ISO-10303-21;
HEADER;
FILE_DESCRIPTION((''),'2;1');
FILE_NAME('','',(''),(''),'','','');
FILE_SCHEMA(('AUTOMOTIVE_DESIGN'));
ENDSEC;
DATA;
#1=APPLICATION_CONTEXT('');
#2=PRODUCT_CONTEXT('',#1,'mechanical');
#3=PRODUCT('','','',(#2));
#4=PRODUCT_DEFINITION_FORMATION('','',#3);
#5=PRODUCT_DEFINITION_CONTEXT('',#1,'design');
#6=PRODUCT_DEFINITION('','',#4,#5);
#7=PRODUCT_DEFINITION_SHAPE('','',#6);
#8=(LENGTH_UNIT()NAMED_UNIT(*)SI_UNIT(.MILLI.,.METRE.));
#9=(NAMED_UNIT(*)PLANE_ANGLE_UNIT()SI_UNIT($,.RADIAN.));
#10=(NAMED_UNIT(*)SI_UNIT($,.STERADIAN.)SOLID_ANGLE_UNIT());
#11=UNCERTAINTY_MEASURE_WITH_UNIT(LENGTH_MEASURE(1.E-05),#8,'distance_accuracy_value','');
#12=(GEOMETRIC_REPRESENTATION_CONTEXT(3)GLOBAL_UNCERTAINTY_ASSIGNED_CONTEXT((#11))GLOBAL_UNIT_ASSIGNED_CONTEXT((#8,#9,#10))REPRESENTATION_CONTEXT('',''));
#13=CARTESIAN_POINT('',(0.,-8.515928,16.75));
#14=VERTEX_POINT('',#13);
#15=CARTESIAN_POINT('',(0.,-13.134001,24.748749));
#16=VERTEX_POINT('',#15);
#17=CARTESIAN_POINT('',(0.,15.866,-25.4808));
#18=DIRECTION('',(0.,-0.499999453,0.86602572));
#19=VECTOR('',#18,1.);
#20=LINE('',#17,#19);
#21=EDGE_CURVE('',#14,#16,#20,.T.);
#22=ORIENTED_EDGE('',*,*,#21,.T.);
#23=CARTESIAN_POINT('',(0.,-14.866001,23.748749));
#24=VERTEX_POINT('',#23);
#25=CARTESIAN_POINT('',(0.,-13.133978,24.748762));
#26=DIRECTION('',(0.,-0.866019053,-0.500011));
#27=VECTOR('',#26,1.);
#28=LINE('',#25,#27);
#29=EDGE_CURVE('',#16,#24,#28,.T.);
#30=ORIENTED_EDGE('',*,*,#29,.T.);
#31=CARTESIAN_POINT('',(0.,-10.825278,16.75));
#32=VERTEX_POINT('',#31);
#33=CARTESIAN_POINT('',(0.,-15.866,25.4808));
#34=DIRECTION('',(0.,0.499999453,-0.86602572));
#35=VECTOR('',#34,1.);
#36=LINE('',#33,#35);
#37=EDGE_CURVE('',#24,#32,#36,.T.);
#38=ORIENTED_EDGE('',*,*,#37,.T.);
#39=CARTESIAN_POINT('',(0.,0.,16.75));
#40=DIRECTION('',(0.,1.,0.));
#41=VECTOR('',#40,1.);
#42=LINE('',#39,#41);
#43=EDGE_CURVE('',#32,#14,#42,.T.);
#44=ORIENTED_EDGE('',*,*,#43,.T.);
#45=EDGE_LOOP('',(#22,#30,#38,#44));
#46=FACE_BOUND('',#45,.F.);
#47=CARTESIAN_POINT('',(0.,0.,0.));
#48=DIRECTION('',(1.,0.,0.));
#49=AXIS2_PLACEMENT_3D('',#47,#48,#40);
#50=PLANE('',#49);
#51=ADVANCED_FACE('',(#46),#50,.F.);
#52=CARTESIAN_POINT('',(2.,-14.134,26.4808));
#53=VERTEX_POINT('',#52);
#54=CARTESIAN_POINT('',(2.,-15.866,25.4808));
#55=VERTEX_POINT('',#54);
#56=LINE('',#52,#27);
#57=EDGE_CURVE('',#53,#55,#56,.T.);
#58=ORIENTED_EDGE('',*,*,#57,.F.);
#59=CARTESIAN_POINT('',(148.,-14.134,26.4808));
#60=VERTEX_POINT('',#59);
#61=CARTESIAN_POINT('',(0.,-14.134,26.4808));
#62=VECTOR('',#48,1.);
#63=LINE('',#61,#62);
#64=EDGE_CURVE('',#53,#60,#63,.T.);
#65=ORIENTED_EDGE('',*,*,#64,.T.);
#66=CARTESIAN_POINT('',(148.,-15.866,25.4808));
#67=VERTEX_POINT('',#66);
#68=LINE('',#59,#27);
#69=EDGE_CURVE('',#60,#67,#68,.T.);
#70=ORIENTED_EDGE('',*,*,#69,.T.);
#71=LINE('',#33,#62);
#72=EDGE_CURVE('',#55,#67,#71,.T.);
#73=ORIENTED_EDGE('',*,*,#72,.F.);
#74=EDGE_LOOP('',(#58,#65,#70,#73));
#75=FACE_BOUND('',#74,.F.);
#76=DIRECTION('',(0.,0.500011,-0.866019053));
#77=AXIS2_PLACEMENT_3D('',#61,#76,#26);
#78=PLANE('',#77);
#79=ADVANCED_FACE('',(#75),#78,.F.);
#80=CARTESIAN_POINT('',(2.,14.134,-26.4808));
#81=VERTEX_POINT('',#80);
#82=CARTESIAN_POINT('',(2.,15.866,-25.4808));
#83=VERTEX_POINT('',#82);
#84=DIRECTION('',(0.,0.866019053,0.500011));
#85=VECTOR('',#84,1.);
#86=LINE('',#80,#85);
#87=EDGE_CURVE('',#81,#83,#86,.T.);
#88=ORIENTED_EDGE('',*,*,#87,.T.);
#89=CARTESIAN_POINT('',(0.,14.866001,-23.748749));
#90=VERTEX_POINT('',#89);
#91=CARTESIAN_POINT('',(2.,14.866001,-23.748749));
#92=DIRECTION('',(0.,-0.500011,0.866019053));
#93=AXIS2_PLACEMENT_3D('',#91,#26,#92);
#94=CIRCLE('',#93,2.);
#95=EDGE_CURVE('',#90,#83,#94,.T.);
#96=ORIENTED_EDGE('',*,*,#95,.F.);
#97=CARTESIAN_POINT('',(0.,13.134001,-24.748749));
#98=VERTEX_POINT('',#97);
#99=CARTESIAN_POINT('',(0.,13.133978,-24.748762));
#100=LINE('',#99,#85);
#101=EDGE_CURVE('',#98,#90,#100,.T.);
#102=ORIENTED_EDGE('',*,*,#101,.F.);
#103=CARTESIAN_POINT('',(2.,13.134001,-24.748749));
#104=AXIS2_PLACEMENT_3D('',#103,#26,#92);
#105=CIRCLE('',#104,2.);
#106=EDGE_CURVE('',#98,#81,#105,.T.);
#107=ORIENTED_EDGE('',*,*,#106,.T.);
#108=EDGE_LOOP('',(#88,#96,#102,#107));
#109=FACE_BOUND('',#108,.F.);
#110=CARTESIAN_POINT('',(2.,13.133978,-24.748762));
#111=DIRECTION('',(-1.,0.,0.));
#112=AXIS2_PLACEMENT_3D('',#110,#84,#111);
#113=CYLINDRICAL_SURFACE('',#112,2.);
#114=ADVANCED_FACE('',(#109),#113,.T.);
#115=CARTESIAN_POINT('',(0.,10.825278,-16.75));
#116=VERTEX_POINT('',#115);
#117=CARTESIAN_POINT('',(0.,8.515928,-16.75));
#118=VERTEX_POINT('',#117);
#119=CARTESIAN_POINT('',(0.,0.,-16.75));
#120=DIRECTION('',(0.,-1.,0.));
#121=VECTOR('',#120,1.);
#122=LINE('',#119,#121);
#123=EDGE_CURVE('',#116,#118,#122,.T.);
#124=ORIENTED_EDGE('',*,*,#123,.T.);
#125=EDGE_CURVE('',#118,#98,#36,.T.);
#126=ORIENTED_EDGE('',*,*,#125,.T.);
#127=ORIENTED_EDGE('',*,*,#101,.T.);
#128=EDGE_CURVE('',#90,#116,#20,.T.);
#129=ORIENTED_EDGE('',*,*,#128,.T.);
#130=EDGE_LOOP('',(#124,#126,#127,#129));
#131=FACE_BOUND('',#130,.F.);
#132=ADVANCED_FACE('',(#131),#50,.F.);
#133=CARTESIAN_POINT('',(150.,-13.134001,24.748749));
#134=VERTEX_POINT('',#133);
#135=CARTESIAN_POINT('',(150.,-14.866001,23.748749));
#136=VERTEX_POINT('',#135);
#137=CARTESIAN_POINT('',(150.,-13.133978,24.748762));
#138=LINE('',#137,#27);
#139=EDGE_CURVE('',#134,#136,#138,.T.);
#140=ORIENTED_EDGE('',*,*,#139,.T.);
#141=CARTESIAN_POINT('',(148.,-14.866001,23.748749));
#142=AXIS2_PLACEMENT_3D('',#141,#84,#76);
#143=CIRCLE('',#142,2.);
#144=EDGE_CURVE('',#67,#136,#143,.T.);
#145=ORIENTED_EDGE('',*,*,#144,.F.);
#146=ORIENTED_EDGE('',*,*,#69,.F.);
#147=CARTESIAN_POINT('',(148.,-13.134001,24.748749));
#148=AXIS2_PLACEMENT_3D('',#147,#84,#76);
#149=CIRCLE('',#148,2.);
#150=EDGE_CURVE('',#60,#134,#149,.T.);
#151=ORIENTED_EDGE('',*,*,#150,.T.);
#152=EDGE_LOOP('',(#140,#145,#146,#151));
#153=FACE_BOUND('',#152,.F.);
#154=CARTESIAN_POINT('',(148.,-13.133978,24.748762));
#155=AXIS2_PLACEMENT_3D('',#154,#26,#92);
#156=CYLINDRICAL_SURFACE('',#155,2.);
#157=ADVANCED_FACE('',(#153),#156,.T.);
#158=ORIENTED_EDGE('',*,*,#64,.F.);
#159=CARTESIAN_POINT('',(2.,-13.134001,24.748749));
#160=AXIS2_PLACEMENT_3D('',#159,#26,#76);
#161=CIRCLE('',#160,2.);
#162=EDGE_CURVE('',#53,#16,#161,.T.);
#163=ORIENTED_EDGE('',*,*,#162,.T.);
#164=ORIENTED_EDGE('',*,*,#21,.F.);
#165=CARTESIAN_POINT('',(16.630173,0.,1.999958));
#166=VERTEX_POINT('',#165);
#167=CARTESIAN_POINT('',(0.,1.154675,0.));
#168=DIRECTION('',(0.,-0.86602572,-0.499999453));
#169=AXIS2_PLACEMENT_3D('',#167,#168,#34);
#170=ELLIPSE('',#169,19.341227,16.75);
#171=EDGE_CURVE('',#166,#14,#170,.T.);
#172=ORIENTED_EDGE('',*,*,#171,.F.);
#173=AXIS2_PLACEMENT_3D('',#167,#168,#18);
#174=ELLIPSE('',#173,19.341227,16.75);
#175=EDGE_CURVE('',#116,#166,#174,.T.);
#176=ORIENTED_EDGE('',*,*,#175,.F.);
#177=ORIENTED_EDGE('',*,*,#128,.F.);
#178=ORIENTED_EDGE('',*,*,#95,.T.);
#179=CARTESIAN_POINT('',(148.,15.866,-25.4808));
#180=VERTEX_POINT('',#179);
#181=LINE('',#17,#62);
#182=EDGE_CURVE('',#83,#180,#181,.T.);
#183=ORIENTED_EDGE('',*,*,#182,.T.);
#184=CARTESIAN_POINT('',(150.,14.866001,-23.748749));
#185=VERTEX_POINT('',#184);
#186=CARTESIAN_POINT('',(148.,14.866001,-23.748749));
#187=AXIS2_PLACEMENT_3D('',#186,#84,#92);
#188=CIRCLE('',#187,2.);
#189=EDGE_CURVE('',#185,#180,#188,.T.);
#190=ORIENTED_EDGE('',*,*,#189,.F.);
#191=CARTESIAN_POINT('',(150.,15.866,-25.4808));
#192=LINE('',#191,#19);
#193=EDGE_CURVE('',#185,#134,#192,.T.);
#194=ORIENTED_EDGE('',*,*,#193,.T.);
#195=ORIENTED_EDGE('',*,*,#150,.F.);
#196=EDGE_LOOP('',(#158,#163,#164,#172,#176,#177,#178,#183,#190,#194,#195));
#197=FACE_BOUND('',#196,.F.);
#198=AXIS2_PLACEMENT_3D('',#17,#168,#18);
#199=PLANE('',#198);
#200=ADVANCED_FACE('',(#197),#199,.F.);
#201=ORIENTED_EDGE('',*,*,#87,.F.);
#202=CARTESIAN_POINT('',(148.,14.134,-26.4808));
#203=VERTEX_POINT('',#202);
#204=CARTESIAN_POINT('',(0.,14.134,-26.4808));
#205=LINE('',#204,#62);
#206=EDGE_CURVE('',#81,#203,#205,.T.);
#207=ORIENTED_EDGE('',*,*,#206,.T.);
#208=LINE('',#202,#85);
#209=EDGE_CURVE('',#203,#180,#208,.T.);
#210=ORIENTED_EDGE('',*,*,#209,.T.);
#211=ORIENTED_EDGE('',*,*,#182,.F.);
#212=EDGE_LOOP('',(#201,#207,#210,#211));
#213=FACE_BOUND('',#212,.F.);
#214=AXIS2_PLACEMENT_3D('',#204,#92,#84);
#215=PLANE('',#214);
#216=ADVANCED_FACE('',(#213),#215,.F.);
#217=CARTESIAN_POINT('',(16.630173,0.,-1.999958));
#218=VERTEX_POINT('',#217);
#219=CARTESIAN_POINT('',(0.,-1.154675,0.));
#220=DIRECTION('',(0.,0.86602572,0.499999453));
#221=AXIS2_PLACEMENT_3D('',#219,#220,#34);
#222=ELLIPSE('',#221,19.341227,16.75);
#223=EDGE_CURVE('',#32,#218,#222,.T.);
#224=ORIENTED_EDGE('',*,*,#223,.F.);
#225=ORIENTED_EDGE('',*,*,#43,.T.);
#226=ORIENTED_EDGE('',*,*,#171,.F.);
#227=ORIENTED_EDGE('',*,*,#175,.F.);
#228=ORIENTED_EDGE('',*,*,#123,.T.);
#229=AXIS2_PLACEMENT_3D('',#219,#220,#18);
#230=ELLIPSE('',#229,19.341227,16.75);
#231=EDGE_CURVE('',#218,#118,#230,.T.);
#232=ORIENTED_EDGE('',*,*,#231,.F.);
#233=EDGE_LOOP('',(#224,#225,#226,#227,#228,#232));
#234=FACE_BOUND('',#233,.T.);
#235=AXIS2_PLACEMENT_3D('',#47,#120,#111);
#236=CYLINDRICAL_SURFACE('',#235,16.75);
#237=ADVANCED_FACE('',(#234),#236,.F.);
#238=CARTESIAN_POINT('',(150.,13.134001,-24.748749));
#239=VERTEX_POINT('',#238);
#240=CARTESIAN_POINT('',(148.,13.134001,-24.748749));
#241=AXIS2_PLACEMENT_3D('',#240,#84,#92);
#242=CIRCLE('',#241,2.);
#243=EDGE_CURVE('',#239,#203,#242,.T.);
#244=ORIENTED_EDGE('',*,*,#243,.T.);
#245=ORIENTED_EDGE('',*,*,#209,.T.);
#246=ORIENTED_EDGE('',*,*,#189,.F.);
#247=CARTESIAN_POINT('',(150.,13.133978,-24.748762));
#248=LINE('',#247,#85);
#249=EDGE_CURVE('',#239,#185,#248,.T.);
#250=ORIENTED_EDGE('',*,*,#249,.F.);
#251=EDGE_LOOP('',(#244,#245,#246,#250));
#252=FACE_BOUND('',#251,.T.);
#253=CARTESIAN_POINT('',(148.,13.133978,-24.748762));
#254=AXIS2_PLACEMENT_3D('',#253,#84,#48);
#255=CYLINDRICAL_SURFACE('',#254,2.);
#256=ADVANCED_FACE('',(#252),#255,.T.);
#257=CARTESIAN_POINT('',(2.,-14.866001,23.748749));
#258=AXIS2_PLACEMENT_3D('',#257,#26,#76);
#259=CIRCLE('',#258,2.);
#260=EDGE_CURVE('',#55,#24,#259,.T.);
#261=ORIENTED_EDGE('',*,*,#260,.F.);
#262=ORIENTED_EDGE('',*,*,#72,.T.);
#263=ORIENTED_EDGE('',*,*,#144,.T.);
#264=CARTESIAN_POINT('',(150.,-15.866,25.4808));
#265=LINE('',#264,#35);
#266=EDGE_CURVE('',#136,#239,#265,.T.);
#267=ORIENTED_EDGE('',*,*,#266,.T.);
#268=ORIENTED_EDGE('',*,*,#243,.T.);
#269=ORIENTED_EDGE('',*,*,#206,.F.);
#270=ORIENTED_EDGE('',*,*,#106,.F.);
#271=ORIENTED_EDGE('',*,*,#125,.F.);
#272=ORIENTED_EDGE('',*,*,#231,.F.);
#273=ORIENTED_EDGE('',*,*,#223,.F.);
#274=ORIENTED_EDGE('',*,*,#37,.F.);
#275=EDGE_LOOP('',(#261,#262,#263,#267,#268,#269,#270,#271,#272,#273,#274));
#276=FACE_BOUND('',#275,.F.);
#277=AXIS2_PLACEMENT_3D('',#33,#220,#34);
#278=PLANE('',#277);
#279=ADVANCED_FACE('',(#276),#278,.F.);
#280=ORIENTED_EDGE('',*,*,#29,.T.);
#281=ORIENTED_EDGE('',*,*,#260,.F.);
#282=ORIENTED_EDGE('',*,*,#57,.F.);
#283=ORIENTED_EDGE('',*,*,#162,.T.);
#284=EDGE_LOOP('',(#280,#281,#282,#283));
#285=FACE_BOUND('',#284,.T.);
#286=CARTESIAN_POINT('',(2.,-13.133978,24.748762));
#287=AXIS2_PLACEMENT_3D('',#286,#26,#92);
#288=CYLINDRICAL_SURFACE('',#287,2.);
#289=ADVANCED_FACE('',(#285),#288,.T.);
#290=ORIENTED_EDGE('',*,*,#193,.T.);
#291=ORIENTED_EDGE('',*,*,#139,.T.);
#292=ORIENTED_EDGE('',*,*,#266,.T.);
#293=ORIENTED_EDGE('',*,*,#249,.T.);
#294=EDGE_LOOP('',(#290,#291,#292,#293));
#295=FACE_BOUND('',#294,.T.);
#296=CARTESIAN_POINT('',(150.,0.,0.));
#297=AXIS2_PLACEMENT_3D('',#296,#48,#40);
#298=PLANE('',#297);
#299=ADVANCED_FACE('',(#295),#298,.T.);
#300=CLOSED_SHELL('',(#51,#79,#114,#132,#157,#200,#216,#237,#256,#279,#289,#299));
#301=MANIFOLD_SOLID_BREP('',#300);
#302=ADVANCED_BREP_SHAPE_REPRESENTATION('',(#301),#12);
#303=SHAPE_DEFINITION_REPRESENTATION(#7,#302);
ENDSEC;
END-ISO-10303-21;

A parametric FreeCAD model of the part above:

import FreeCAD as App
import Part
import Sketcher
from FreeCAD import Vector
Q = App.Units.Quantity


def edges_at(feature, points):
    """Names of the edges that pass closest to the given points."""
    edges = feature.Shape.Edges
    near = lambda p: min(range(len(edges)), key=lambda i: edges[i].distToShape(Part.Vertex(*p))[0])
    return sorted({f"Edge{near(p) + 1}" for p in points})


def add_polygon(sketch, points):
    """Adds a closed chain of lines whose ends are joined by coincident constraints."""
    first, n = sketch.GeometryCount, len(points)
    for a, b in zip(points, points[1:] + points[:1]):
        sketch.addGeometry(Part.LineSegment(App.Vector(*a, 0), App.Vector(*b, 0)), False)
    for i in range(n):
        sketch.addConstraint(Sketcher.Constraint("Coincident", first + i, 2, first + (i + 1) % n, 1))

doc = App.newDocument("Part")
body = doc.addObject("PartDesign::Body", "Body")

# Sketch on YZ plane
sketch1 = body.newObject("Sketcher::SketchObject", "Sketch")
sketch1.AttachmentSupport = (doc.getObject("YZ_Plane"), [""])
sketch1.MapMode = "FlatFace"
add_polygon(sketch1, [(-14.1, 26.5), (-15.9, 25.5), (14.1, -26.5), (15.9, -25.5)])  # lines 0-3
sketch1.addConstraint([
    Sketcher.Constraint("Symmetric", 0, 2, 2, 2, -1, 1),
    Sketcher.Constraint("Symmetric", 1, 2, 3, 2, -1, 1),
    Sketcher.Constraint("Perpendicular", 0, 1),
    Sketcher.Constraint("Angle", 1, Q("-60 deg")),
    Sketcher.Constraint("Distance", 0, Q("2 mm")),
    Sketcher.Constraint("Distance", 1, Q("60 mm")),
])
pad1 = body.newObject("PartDesign::Pad", "Pad")
pad1.Profile = sketch1
pad1.Length = 150

# Sketch on XZ plane
sketch2 = body.newObject("Sketcher::SketchObject", "Sketch001")
sketch2.AttachmentSupport = (doc.getObject("XZ_Plane"), [""])
sketch2.MapMode = "FlatFace"
sketch2.addGeometry(Part.Circle(Vector(0, 0, 0), Vector(0, 0, 1), 17), False)
sketch2.addConstraint([
    Sketcher.Constraint("Coincident", 0, 3, -1, 1),
    Sketcher.Constraint("Diameter", 0, Q("33.5 mm")),
])
pocket1 = body.newObject("PartDesign::Pocket", "Pocket")
pocket1.Profile = sketch2
pocket1.Type = "ThroughAll"
pocket1.Midplane = True
doc.recompute()

fillet = body.newObject("PartDesign::Fillet", "Fillet")
fillet.Base = (pocket1, edges_at(pocket1, [
    (150, -15, 25.981),
    (150, 15, -25.981),
    (0, -15, 25.981),
    (0, 15, -25.981),
]))
fillet.Radius = 2

doc.recompute()
